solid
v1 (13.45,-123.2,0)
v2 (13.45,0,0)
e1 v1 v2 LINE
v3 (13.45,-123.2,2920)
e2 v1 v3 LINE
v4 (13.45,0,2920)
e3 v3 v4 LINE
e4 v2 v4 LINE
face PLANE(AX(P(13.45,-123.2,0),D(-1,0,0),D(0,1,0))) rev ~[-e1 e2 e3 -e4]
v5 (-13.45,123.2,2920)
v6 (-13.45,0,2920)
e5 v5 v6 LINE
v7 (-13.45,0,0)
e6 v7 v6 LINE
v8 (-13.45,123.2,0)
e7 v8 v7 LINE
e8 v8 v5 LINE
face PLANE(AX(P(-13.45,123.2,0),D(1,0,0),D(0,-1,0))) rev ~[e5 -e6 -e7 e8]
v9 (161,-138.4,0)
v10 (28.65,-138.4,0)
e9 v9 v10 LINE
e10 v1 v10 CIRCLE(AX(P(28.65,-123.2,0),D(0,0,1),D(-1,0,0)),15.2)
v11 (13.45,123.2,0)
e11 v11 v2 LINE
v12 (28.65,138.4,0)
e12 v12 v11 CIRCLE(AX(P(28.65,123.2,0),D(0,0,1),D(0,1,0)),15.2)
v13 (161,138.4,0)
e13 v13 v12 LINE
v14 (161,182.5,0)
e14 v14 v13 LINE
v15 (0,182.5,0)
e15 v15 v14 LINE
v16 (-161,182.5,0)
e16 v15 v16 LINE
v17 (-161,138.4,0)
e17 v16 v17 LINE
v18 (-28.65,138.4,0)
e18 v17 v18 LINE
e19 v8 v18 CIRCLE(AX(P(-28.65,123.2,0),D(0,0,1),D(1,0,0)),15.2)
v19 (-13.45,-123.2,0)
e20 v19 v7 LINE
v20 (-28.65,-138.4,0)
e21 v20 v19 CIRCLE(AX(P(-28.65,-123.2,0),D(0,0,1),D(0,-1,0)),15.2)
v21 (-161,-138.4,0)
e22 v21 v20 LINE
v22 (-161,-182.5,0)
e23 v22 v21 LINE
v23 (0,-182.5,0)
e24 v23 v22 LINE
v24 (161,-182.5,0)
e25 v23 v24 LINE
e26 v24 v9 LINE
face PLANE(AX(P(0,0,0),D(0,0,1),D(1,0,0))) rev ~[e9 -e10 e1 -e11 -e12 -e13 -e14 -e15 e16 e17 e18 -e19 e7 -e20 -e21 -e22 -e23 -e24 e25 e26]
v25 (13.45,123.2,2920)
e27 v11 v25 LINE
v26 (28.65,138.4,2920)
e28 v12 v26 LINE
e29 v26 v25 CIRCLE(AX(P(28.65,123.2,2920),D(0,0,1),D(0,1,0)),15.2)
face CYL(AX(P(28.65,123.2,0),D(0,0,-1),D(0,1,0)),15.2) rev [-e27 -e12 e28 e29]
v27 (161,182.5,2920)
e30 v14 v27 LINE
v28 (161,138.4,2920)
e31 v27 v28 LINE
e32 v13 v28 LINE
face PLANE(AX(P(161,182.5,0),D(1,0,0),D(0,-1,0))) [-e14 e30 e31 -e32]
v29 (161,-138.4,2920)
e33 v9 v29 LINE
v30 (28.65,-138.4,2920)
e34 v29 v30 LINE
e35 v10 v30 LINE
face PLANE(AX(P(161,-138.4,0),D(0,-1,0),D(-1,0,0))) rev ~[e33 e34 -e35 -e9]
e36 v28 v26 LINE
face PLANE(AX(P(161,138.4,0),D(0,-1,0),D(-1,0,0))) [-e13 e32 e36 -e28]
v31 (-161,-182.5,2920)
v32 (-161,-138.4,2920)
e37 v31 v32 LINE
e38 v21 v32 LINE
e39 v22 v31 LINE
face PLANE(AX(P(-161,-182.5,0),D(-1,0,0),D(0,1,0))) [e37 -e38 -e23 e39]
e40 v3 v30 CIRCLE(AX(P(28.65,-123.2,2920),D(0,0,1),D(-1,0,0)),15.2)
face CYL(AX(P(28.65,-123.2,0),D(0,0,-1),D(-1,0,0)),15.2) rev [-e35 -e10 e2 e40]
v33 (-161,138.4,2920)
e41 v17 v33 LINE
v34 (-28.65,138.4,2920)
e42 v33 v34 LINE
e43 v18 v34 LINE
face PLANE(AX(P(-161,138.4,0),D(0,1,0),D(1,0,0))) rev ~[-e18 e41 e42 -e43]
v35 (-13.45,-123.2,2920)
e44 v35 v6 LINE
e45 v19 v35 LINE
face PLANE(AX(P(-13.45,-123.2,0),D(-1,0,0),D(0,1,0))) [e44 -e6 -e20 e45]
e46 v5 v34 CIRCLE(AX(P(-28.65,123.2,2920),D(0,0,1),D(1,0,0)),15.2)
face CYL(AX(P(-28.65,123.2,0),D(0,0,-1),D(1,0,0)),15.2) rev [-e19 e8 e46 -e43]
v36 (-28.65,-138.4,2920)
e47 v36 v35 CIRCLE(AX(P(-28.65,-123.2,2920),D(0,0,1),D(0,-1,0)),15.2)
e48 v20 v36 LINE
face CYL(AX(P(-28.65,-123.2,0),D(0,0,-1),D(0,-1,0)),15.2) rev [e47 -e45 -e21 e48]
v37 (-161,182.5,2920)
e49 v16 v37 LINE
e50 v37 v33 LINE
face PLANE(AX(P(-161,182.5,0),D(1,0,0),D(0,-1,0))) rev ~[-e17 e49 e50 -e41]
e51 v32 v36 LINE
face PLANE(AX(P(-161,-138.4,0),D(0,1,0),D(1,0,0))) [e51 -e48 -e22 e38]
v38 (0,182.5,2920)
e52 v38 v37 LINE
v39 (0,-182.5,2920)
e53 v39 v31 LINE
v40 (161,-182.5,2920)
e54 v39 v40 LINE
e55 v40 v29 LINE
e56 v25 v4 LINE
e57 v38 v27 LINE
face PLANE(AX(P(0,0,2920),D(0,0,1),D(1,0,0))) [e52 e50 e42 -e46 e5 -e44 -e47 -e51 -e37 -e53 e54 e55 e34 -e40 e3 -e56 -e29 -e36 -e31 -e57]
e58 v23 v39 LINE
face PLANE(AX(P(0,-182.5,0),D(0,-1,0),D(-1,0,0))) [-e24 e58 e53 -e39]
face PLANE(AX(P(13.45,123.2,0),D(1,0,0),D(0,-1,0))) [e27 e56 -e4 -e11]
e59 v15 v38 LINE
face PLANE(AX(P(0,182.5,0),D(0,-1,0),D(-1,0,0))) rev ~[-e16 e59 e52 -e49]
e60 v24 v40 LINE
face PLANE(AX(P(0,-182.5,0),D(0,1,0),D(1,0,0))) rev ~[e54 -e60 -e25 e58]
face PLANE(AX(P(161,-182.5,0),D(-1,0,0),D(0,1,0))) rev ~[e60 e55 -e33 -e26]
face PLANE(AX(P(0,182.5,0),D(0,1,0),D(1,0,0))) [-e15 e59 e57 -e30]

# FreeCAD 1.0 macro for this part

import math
import FreeCAD as App
import Part
import Sketcher
from FreeCAD import Vector
Q = App.Units.Quantity

doc = App.newDocument("Part")
params = doc.addObject("Spreadsheet::Sheet", "Params")
for row, (alias, value) in enumerate([
    ("sketch1_radius", "15.2 mm"),
    ("sketch1_height", "44.1 mm"),
    ("pad1_length", "2920 mm"),
], start=1):
    params.set(f"A{row}", alias)
    params.set(f"B{row}", "=" + value)
    params.setAlias(f"B{row}", alias)

body = doc.addObject("PartDesign::Body", "Body")

sketch1 = body.newObject("Sketcher::SketchObject", "Sketch")
sketch1.AttachmentSupport = (doc.getObject("XY_Plane"), [""])
sketch1.MapMode = "FlatFace"
sketch1.addGeometry([
    Part.LineSegment(Vector(-161, -138, 0), Vector(-161, -182, 0)),
    Part.LineSegment(Vector(-161, -182, 0), Vector(161, -182, 0)),
    Part.LineSegment(Vector(161, -182, 0), Vector(161, -138, 0)),
    Part.LineSegment(Vector(161, -138, 0), Vector(29, -138, 0)),
    Part.ArcOfCircle(Part.Circle(Vector(29, -123, 0), Vector(0, 0, 1), 15), math.radians(180), math.radians(270)),
    Part.LineSegment(Vector(13, -123, 0), Vector(13, 123, 0)),
    Part.ArcOfCircle(Part.Circle(Vector(29, 123, 0), Vector(0, 0, 1), 15), math.radians(90), math.radians(180)),
    Part.LineSegment(Vector(29, 138, 0), Vector(161, 138, 0)),
    Part.LineSegment(Vector(161, 138, 0), Vector(161, 182, 0)),
    Part.LineSegment(Vector(161, 182, 0), Vector(-161, 182, 0)),
    Part.LineSegment(Vector(-161, 182, 0), Vector(-161, 138, 0)),
    Part.LineSegment(Vector(-161, 138, 0), Vector(-29, 138, 0)),
    Part.ArcOfCircle(Part.Circle(Vector(-29, 123, 0), Vector(0, 0, 1), 15), math.radians(0), math.radians(90)),
    Part.LineSegment(Vector(-13, 123, 0), Vector(-13, -123, 0)),
    Part.ArcOfCircle(Part.Circle(Vector(-29, -123, 0), Vector(0, 0, 1), 15), math.radians(-90), math.radians(0)),
    Part.LineSegment(Vector(-29, -138, 0), Vector(-161, -138, 0)),
], False)
sketch1.addConstraint([
    Sketcher.Constraint("Coincident", 0, 2, 1, 1),
    Sketcher.Constraint("Coincident", 1, 2, 2, 1),
    Sketcher.Constraint("Coincident", 2, 2, 3, 1),
    Sketcher.Constraint("Tangent", 3, 2, 4, 2),
    Sketcher.Constraint("Tangent", 4, 1, 5, 1),
    Sketcher.Constraint("Tangent", 5, 2, 6, 2),
    Sketcher.Constraint("Tangent", 6, 1, 7, 1),
    Sketcher.Constraint("Coincident", 7, 2, 8, 1),
    Sketcher.Constraint("Coincident", 8, 2, 9, 1),
    Sketcher.Constraint("Coincident", 9, 2, 10, 1),
    Sketcher.Constraint("Coincident", 10, 2, 11, 1),
    Sketcher.Constraint("Tangent", 11, 2, 12, 2),
    Sketcher.Constraint("Tangent", 12, 1, 13, 1),
    Sketcher.Constraint("Tangent", 13, 2, 14, 2),
    Sketcher.Constraint("Tangent", 14, 1, 15, 1),
    Sketcher.Constraint("Coincident", 15, 2, 0, 1),
    Sketcher.Constraint("Vertical", 0),
    Sketcher.Constraint("Horizontal", 1),
    Sketcher.Constraint("Vertical", 2),
    Sketcher.Constraint("Horizontal", 3),
    Sketcher.Constraint("Vertical", 5),
    Sketcher.Constraint("Horizontal", 7),
    Sketcher.Constraint("Vertical", 8),
    Sketcher.Constraint("Horizontal", 9),
    Sketcher.Constraint("Vertical", 10),
    Sketcher.Constraint("Horizontal", 11),
    Sketcher.Constraint("Vertical", 13),
    Sketcher.Constraint("Horizontal", 15),
    Sketcher.Constraint("Equal", 4, 6),
    Sketcher.Constraint("Equal", 6, 12),
    Sketcher.Constraint("Equal", 12, 14),
    Sketcher.Constraint("Symmetric", 4, 3, 12, 3, -1, 1),
    Sketcher.Constraint("Symmetric", 0, 2, 8, 2, -1, 1),
    Sketcher.Constraint("Symmetric", 7, 2, 10, 2, -2),
    Sketcher.Constraint("Symmetric", 2, 2, 15, 2, -2),
    Sketcher.Constraint("Radius", 4, Q("15.2 mm")),
    Sketcher.Constraint("DistanceY", 0, 2, 0, 1, Q("44.1 mm")),
    Sketcher.Constraint("DistanceX", 0, 2, -1, 1, Q("161 mm")),
    Sketcher.Constraint("DistanceY", 0, 2, -1, 1, Q("182.5 mm")),
    Sketcher.Constraint("DistanceX", -1, 1, 4, 1, Q("13.45 mm")),
])
sketch1.setExpression("Constraints[35]", "Params.sketch1_radius")
sketch1.setExpression("Constraints[36]", "Params.sketch1_height")
pad1 = body.newObject("PartDesign::Pad", "Pad")
pad1.Profile = sketch1
pad1.setExpression("Length", "Params.pad1_length")

doc.recompute()
